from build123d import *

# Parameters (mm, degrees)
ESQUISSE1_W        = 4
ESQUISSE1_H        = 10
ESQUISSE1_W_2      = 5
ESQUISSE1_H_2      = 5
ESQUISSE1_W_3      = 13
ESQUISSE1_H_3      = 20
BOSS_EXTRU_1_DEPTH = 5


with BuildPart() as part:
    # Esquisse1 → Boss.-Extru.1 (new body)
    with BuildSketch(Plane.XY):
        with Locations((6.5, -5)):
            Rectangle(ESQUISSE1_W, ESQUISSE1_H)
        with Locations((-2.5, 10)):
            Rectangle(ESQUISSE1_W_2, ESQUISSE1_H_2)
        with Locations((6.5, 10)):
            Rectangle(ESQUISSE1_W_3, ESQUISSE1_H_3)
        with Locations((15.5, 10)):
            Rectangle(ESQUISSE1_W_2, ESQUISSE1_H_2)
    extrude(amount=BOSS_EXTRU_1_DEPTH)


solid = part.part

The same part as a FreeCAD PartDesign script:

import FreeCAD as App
import Part
import Sketcher

V = App.Vector
Q = App.Units.Quantity

doc = App.newDocument("Part")
body = doc.addObject("PartDesign::Body", "Body")

# Sketch on XY plane
sketch1 = doc.addObject("Sketcher::SketchObject", "Sketch")
body.addObject(sketch1)
sketch1.AttachmentSupport = (doc.XY_Plane, [""])
sketch1.MapMode = "FlatFace"
sketch1.addGeometry([
    Part.LineSegment(V(4.5, 0, 0), V(4.5, -10, 0)),  # 0
    Part.LineSegment(V(4.5, -10, 0), V(8.5, -10, 0)),  # 1
    Part.LineSegment(V(8.5, -10, 0), V(8.5, 0, 0)),  # 2
    Part.LineSegment(V(8.5, 0, 0), V(13, 0, 0)),  # 3
    Part.LineSegment(V(13, 0, 0), V(13, 7.5, 0)),  # 4
    Part.LineSegment(V(13, 7.5, 0), V(18, 7.5, 0)),  # 5
    Part.LineSegment(V(18, 7.5, 0), V(18, 12.5, 0)),  # 6
    Part.LineSegment(V(18, 12.5, 0), V(13, 12.5, 0)),  # 7
    Part.LineSegment(V(13, 12.5, 0), V(13, 20, 0)),  # 8
    Part.LineSegment(V(13, 20, 0), V(0, 20, 0)),  # 9
    Part.LineSegment(V(0, 20, 0), V(0, 12.5, 0)),  # 10
    Part.LineSegment(V(0, 12.5, 0), V(-5, 12.5, 0)),  # 11
    Part.LineSegment(V(-5, 12.5, 0), V(-5, 7.5, 0)),  # 12
    Part.LineSegment(V(-5, 7.5, 0), V(0, 7.5, 0)),  # 13
    Part.LineSegment(V(0, 7.5, 0), V(0, 0, 0)),  # 14
    Part.LineSegment(V(0, 0, 0), V(4.5, 0, 0)),  # 15
], False)
sketch1.addConstraint([
    Sketcher.Constraint("Coincident", 0, 2, 1, 1),
    Sketcher.Constraint("Coincident", 1, 2, 2, 1),
    Sketcher.Constraint("Coincident", 2, 2, 3, 1),
    Sketcher.Constraint("Coincident", 3, 2, 4, 1),
    Sketcher.Constraint("Coincident", 4, 2, 5, 1),
    Sketcher.Constraint("Coincident", 5, 2, 6, 1),
    Sketcher.Constraint("Coincident", 6, 2, 7, 1),
    Sketcher.Constraint("Coincident", 7, 2, 8, 1),
    Sketcher.Constraint("Coincident", 8, 2, 9, 1),
    Sketcher.Constraint("Coincident", 9, 2, 10, 1),
    Sketcher.Constraint("Coincident", 10, 2, 11, 1),
    Sketcher.Constraint("Coincident", 11, 2, 12, 1),
    Sketcher.Constraint("Coincident", 12, 2, 13, 1),
    Sketcher.Constraint("Coincident", 13, 2, 14, 1),
    Sketcher.Constraint("Coincident", 14, 2, 15, 1),
    Sketcher.Constraint("Coincident", 15, 2, 0, 1),
    Sketcher.Constraint("Vertical", 0),
    Sketcher.Constraint("Horizontal", 1),
    Sketcher.Constraint("Vertical", 2),
    Sketcher.Constraint("Horizontal", 3),
    Sketcher.Constraint("Vertical", 4),
    Sketcher.Constraint("Horizontal", 5),
    Sketcher.Constraint("Vertical", 6),
    Sketcher.Constraint("Horizontal", 7),
    Sketcher.Constraint("Vertical", 8),
    Sketcher.Constraint("Horizontal", 9),
    Sketcher.Constraint("Vertical", 10),
    Sketcher.Constraint("Horizontal", 11),
    Sketcher.Constraint("Vertical", 12),
    Sketcher.Constraint("Horizontal", 13),
    Sketcher.Constraint("Vertical", 14),
    Sketcher.Constraint("Horizontal", 15),
    Sketcher.Constraint("Coincident", 14, 2, -1, 1),
    Sketcher.Constraint("PointOnObject", 2, 2, -1),
    Sketcher.Constraint("PointOnObject", 9, 2, -2),
    Sketcher.Constraint("Horizontal", 7, 2, 10, 2),
    Sketcher.Constraint("Horizontal", 5, 2, 12, 2),
    Sketcher.Constraint("Vertical", 4, 2, 7, 2),
    Sketcher.Constraint("Equal", 7, 11),
    Sketcher.Constraint("Equal", 3, 15),
    Sketcher.Constraint("Equal", 13, 6),
    Sketcher.Constraint("Equal", 4, 8),
    Sketcher.Constraint("DistanceX", 1, 1, 1, 2, Q("4 mm")),
    Sketcher.Constraint("DistanceX", 5, 1, 5, 2, Q("5 mm")),
    Sketcher.Constraint("DistanceX", 9, 2, 9, 1, Q("13 mm")),
    Sketcher.Constraint("DistanceY", 0, 2, 0, 1, Q("10 mm")),
    Sketcher.Constraint("DistanceY", 4, 1, 4, 2, Q("7.5 mm")),
])
pad1 = doc.addObject("PartDesign::Pad", "Pad")
body.addObject(pad1)
pad1.Profile = sketch1
pad1.Length = 5

doc.recompute()
